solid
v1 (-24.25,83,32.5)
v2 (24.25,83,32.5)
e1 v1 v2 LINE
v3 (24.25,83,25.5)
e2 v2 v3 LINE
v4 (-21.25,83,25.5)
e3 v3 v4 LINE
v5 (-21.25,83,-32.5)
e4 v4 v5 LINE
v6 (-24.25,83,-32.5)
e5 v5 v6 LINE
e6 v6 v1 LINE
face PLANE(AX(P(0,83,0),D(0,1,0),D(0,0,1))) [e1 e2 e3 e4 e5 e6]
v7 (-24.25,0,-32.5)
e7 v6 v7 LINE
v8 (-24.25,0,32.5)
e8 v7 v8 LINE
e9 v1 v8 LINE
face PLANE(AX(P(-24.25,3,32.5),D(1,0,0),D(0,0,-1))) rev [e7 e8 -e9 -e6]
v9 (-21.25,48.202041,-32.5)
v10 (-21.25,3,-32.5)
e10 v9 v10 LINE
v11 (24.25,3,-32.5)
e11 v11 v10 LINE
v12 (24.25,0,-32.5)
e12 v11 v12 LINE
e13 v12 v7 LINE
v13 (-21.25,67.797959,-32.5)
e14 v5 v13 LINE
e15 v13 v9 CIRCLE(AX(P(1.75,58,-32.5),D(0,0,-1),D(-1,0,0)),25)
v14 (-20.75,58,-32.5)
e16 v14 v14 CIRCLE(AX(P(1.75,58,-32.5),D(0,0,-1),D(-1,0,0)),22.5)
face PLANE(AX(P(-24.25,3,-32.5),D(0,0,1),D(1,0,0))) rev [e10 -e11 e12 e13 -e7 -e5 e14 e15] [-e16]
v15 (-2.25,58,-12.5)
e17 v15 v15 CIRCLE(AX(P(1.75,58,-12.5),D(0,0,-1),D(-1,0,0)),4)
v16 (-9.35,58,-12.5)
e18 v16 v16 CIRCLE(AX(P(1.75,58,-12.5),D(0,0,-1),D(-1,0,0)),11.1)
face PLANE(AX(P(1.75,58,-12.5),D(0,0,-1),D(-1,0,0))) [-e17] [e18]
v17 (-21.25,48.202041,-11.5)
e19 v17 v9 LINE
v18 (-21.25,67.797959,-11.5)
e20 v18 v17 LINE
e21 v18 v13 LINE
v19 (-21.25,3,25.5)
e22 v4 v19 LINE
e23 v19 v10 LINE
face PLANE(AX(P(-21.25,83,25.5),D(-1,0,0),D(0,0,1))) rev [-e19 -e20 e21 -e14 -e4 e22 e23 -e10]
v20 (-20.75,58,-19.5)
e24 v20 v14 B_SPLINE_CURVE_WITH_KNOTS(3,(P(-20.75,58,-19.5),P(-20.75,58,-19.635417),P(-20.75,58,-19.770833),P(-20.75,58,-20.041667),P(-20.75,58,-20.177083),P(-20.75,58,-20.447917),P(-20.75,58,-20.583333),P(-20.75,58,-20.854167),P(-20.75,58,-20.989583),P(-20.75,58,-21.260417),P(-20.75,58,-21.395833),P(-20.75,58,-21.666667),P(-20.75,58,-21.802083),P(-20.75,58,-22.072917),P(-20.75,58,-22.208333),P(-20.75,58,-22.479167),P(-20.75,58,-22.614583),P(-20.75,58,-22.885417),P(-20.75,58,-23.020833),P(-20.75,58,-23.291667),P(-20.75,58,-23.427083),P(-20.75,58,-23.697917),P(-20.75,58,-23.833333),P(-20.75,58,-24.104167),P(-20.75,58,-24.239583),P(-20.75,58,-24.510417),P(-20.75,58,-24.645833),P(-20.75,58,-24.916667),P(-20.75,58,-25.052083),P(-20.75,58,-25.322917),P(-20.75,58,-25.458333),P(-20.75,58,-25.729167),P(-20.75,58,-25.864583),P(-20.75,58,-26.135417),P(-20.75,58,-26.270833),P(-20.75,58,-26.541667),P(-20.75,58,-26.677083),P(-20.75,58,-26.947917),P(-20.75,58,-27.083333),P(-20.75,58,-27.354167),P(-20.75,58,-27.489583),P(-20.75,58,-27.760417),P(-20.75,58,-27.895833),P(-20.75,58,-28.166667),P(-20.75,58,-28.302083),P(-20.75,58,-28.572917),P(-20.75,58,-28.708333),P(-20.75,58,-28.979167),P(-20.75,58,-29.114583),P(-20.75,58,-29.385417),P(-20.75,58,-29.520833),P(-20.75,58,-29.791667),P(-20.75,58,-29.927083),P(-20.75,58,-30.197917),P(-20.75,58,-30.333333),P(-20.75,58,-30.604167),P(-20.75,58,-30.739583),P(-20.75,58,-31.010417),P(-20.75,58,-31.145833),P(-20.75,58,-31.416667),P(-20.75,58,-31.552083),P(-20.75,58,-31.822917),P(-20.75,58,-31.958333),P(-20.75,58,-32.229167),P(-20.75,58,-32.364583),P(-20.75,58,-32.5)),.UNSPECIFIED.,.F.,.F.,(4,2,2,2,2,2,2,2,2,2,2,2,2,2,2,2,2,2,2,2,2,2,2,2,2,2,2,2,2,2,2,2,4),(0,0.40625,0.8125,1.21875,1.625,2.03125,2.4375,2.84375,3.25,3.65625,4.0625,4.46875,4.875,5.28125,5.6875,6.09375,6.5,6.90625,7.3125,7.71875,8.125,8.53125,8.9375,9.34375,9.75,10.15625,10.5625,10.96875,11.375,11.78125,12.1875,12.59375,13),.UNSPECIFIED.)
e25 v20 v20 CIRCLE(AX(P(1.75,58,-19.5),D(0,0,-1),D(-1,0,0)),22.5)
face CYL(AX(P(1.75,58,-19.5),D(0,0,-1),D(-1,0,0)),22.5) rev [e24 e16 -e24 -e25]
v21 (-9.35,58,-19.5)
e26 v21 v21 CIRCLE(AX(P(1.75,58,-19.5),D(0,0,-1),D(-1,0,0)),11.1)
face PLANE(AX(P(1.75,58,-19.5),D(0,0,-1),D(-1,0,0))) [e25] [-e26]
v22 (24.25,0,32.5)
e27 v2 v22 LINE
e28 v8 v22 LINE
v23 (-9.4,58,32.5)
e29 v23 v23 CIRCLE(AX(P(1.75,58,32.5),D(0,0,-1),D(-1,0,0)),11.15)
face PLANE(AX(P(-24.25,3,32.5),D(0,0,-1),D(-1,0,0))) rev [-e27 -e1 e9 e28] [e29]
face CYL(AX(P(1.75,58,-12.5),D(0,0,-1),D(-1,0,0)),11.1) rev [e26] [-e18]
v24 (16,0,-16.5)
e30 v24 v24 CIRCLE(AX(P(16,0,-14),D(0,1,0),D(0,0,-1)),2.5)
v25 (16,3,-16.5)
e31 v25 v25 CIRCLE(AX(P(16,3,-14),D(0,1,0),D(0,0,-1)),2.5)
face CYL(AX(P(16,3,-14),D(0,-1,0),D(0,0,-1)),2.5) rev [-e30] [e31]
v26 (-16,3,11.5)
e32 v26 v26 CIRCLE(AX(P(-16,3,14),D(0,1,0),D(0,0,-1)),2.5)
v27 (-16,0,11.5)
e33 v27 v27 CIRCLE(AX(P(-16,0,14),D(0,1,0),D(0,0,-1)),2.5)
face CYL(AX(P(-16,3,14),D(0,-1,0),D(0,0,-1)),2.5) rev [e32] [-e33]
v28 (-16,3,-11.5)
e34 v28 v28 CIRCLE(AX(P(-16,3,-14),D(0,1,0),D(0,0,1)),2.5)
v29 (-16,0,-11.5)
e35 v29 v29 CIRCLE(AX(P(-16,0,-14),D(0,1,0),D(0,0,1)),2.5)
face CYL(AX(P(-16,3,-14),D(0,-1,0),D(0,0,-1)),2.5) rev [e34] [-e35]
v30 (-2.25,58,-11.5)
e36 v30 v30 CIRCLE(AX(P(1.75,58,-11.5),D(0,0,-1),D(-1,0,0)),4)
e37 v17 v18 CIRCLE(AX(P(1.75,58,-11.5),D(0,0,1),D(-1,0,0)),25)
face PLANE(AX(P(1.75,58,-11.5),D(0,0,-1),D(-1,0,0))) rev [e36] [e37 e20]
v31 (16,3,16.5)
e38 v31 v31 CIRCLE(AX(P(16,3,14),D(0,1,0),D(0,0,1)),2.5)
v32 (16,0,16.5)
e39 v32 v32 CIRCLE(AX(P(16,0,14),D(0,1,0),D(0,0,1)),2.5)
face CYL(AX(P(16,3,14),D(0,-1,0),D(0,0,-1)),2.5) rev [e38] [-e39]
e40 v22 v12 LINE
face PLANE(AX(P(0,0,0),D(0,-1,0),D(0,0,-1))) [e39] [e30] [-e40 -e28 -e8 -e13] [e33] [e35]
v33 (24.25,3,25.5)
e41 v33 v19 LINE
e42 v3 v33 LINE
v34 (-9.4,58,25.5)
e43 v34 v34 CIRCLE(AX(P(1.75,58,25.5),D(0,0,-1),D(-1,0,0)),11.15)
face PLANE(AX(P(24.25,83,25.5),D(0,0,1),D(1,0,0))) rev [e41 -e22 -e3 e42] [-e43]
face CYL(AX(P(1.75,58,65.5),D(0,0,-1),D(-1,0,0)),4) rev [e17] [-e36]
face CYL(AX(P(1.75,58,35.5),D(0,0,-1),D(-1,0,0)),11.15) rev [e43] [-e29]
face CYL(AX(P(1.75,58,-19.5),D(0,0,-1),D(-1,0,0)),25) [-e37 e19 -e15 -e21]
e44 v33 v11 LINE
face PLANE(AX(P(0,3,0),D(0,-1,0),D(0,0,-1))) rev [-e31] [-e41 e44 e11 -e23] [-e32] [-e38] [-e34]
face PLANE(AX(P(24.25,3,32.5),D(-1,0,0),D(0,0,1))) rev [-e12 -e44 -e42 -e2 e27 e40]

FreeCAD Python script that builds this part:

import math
import FreeCAD as App
import Part
import Sketcher
Q = App.Units.Quantity

doc = App.newDocument("Part")
body = doc.addObject("PartDesign::Body", "Body")

sketch1 = body.newObject("Sketcher::SketchObject", "Sketch")
sketch1.AttachmentSupport = (doc.getObject("XZ_Plane"), [""])
sketch1.MapMode = "FlatFace"
sketch1.addGeometry([
    Part.LineSegment(App.Vector(-24.2, -32.5, 0), App.Vector(-24.2, 32.5, 0)),
    Part.LineSegment(App.Vector(-24.2, 32.5, 0), App.Vector(24.2, 32.5, 0)),
    Part.LineSegment(App.Vector(24.2, 32.5, 0), App.Vector(24.2, -32.5, 0)),
    Part.LineSegment(App.Vector(24.2, -32.5, 0), App.Vector(-24.2, -32.5, 0)),
    Part.Circle(App.Vector(-16, 14, 0), App.Vector(0, 0, 1), 2.5),
    Part.Circle(App.Vector(16, 14, 0), App.Vector(0, 0, 1), 2.5),
    Part.Circle(App.Vector(-16, -14, 0), App.Vector(0, 0, 1), 2.5),
    Part.Circle(App.Vector(16, -14, 0), App.Vector(0, 0, 1), 2.5),
], False)
sketch1.addConstraint([
    Sketcher.Constraint("Coincident", 0, 2, 1, 1),
    Sketcher.Constraint("Coincident", 1, 2, 2, 1),
    Sketcher.Constraint("Coincident", 2, 2, 3, 1),
    Sketcher.Constraint("Coincident", 3, 2, 0, 1),
    Sketcher.Constraint("Vertical", 0),
    Sketcher.Constraint("Horizontal", 1),
    Sketcher.Constraint("Vertical", 2),
    Sketcher.Constraint("Horizontal", 3),
    Sketcher.Constraint("Equal", 4, 5),
    Sketcher.Constraint("Equal", 5, 6),
    Sketcher.Constraint("Equal", 6, 7),
    Sketcher.Constraint("Symmetric", 5, 3, 6, 3, -1, 1),
    Sketcher.Constraint("Symmetric", 4, 3, 7, 3, -1, 1),
    Sketcher.Constraint("Symmetric", 0, 2, 2, 2, -1, 1),
    Sketcher.Constraint("Symmetric", 4, 3, 5, 3, -2),
    Sketcher.Constraint("Diameter", 4, Q("5 mm")),
    Sketcher.Constraint("DistanceY", 0, 1, 0, 2, Q("65 mm")),
    Sketcher.Constraint("DistanceX", 1, 1, 1, 2, Q("48.5 mm")),
    Sketcher.Constraint("DistanceX", 4, 3, -1, 1, Q("16 mm")),
    Sketcher.Constraint("DistanceY", -1, 1, 4, 3, Q("14 mm")),
])
pad1 = body.newObject("PartDesign::Pad", "Pad")
pad1.Profile = sketch1
pad1.Length = 3
pad1.Reversed = True

sketch2 = body.newObject("Sketcher::SketchObject", "Sketch001")
sketch2.AttachmentSupport = (doc.getObject("XZ_Plane"), [""])
sketch2.MapMode = "FlatFace"
sketch2.AttachmentOffset = App.Placement(App.Vector(0, 0, -3), App.Rotation())
sketch2.addGeometry([
    Part.LineSegment(App.Vector(-24.2, -32.5, 0), App.Vector(-24.2, 32.5, 0)),
    Part.LineSegment(App.Vector(-24.2, 32.5, 0), App.Vector(24.2, 32.5, 0)),
    Part.LineSegment(App.Vector(24.2, 32.5, 0), App.Vector(24.2, 25.5, 0)),
    Part.LineSegment(App.Vector(24.2, 25.5, 0), App.Vector(-21.2, 25.5, 0)),
    Part.LineSegment(App.Vector(-21.2, 25.5, 0), App.Vector(-21.2, -32.5, 0)),
    Part.LineSegment(App.Vector(-21.2, -32.5, 0), App.Vector(-24.2, -32.5, 0)),
], False)
sketch2.addConstraint([
    Sketcher.Constraint("Coincident", 0, 2, 1, 1),
    Sketcher.Constraint("Coincident", 1, 2, 2, 1),
    Sketcher.Constraint("Coincident", 2, 2, 3, 1),
    Sketcher.Constraint("Coincident", 3, 2, 4, 1),
    Sketcher.Constraint("Coincident", 4, 2, 5, 1),
    Sketcher.Constraint("Coincident", 5, 2, 0, 1),
    Sketcher.Constraint("Vertical", 0),
    Sketcher.Constraint("Horizontal", 1),
    Sketcher.Constraint("Vertical", 2),
    Sketcher.Constraint("Horizontal", 3),
    Sketcher.Constraint("Vertical", 4),
    Sketcher.Constraint("Horizontal", 5),
    Sketcher.Constraint("Symmetric", 1, 2, 5, 2, -1, 1),
    Sketcher.Constraint("DistanceX", 5, 2, 5, 1, Q("3 mm")),
    Sketcher.Constraint("DistanceY", 0, 1, 0, 2, Q("65 mm")),
    Sketcher.Constraint("DistanceY", 2, 2, 2, 1, Q("7 mm")),
    Sketcher.Constraint("DistanceX", 1, 1, 1, 2, Q("48.5 mm")),
])
pad2 = body.newObject("PartDesign::Pad", "Pad001")
pad2.Profile = sketch2
pad2.Length = 80
pad2.Reversed = True

sketch3 = body.newObject("Sketcher::SketchObject", "Sketch002")
sketch3.AttachmentSupport = (doc.getObject("XY_Plane"), [""])
sketch3.MapMode = "FlatFace"
sketch3.AttachmentOffset = App.Placement(App.Vector(0, 0, -32.5), App.Rotation())
sketch3.addGeometry([
    Part.LineSegment(App.Vector(-21, 48, 0), App.Vector(-21, 68, 0)),
    Part.ArcOfCircle(Part.Circle(App.Vector(2, 58, 0), App.Vector(0, 0, 1), 25), math.radians(-157), math.radians(157)),
    Part.Circle(App.Vector(2, 58, 0), App.Vector(0, 0, 1), 22),
], False)
sketch3.addConstraint([
    Sketcher.Constraint("Coincident", 0, 1, 1, 1),
    Sketcher.Constraint("Coincident", 1, 2, 0, 2),
    Sketcher.Constraint("Vertical", 0),
    Sketcher.Constraint("Coincident", 2, 3, 1, 3),
    Sketcher.Constraint("Diameter", 2, Q("45 mm")),
    Sketcher.Constraint("Radius", 1, Q("25 mm")),
    Sketcher.Constraint("DistanceY", -1, 1, 1, 3, Q("58 mm")),
    Sketcher.Constraint("DistanceX", 0, 1, 1, 3, Q("23 mm")),
    Sketcher.Constraint("DistanceX", -1, 1, 1, 3, Q("1.75 mm")),
])
pad3 = body.newObject("PartDesign::Pad", "Pad002")
pad3.Profile = sketch3
pad3.Length = 13

sketch4 = body.newObject("Sketcher::SketchObject", "Sketch003")
sketch4.AttachmentSupport = (doc.getObject("XY_Plane"), [""])
sketch4.MapMode = "FlatFace"
sketch4.AttachmentOffset = App.Placement(App.Vector(0, 0, -19.5), App.Rotation())
sketch4.addGeometry([
    Part.LineSegment(App.Vector(-21, 68, 0), App.Vector(-21, 48, 0)),
    Part.ArcOfCircle(Part.Circle(App.Vector(2, 58, 0), App.Vector(0, 0, 1), 25), math.radians(-157), math.radians(157)),
], False)
sketch4.addConstraint([
    Sketcher.Constraint("Coincident", 0, 1, 1, 2),
    Sketcher.Constraint("Coincident", 1, 1, 0, 2),
    Sketcher.Constraint("Vertical", 0),
    Sketcher.Constraint("Radius", 1, Q("25 mm")),
    Sketcher.Constraint("DistanceY", -1, 1, 1, 3, Q("58 mm")),
    Sketcher.Constraint("DistanceX", 0, 1, 1, 3, Q("23 mm")),
    Sketcher.Constraint("DistanceX", -1, 1, 1, 3, Q("1.75 mm")),
])
pad4 = body.newObject("PartDesign::Pad", "Pad003")
pad4.Profile = sketch4
pad4.Length = 8

sketch5 = body.newObject("Sketcher::SketchObject", "Sketch004")
sketch5.AttachmentSupport = (doc.getObject("XY_Plane"), [""])
sketch5.MapMode = "FlatFace"
sketch5.AttachmentOffset = App.Placement(App.Vector(0, 0, -19.5), App.Rotation())
sketch5.addGeometry(Part.Circle(App.Vector(2, 58, 0), App.Vector(0, 0, 1), 11), False)
sketch5.addConstraint([
    Sketcher.Constraint("Diameter", 0, Q("22.2 mm")),
    Sketcher.Constraint("DistanceY", -1, 1, 0, 3, Q("58 mm")),
    Sketcher.Constraint("DistanceX", -1, 1, 0, 3, Q("1.75 mm")),
])
pocket1 = body.newObject("PartDesign::Pocket", "Pocket")
pocket1.Profile = sketch5
pocket1.Length = 7
pocket1.Reversed = True

sketch6 = body.newObject("Sketcher::SketchObject", "Sketch005")
sketch6.AttachmentSupport = (doc.getObject("XY_Plane"), [""])
sketch6.MapMode = "FlatFace"
sketch6.AttachmentOffset = App.Placement(App.Vector(0, 0, -12.5), App.Rotation())
sketch6.addGeometry(Part.Circle(App.Vector(1.8, 58, 0), App.Vector(0, 0, 1), 4), False)
sketch6.addConstraint([
    Sketcher.Constraint("Diameter", 0, Q("8 mm")),
    Sketcher.Constraint("DistanceY", -1, 1, 0, 3, Q("58 mm")),
    Sketcher.Constraint("DistanceX", -1, 1, 0, 3, Q("1.75 mm")),
])
pocket2 = body.newObject("PartDesign::Pocket", "Pocket001")
pocket2.Profile = sketch6
pocket2.Length = 78
pocket2.Reversed = True

sketch7 = body.newObject("Sketcher::SketchObject", "Sketch006")
sketch7.AttachmentSupport = (doc.getObject("XY_Plane"), [""])
sketch7.MapMode = "FlatFace"
sketch7.AttachmentOffset = App.Placement(App.Vector(0, 0, 25.5), App.Rotation())
sketch7.addGeometry(Part.Circle(App.Vector(2, 58, 0), App.Vector(0, 0, 1), 11), False)
sketch7.addConstraint([
    Sketcher.Constraint("Diameter", 0, Q("22.3 mm")),
    Sketcher.Constraint("DistanceY", -1, 1, 0, 3, Q("58 mm")),
    Sketcher.Constraint("DistanceX", -1, 1, 0, 3, Q("1.75 mm")),
])
pocket3 = body.newObject("PartDesign::Pocket", "Pocket002")
pocket3.Profile = sketch7
pocket3.Length = 10
pocket3.Reversed = True

doc.recompute()
